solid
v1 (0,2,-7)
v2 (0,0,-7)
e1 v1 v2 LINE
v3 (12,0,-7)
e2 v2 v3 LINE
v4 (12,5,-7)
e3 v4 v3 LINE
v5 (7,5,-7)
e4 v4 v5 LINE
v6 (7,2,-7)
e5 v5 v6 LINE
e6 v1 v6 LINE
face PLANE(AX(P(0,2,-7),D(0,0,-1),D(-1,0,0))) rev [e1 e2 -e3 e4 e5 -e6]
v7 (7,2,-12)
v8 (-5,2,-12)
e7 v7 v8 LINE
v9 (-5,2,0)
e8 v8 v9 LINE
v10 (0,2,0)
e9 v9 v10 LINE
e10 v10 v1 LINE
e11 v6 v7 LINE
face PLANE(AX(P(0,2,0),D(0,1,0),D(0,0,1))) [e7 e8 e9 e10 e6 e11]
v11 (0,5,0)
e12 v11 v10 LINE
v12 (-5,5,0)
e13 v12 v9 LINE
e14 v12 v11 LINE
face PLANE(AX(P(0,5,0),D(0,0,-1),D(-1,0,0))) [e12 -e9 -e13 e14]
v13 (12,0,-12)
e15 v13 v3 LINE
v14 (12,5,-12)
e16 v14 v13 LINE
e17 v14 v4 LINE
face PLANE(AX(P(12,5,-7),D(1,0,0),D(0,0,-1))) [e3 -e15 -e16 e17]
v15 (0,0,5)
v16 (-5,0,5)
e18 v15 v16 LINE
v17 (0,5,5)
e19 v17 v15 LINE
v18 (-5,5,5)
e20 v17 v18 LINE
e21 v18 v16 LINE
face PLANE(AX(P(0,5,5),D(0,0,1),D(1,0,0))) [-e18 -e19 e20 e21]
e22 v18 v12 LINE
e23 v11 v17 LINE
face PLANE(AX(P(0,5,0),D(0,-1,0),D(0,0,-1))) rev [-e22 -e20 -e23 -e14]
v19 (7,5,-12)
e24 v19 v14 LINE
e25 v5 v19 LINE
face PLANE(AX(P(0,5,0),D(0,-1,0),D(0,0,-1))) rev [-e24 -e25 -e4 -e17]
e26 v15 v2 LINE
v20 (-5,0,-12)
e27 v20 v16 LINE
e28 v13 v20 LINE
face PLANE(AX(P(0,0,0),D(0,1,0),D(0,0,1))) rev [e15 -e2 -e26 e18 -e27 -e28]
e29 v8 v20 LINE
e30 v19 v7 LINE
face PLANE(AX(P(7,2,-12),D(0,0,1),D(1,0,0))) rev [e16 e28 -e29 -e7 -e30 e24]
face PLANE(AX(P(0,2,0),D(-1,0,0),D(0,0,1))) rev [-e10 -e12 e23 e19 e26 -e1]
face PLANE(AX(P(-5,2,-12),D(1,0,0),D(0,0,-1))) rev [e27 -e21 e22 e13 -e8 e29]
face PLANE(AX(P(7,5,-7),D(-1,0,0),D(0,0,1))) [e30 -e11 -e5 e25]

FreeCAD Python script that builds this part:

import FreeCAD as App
import Part
import Sketcher
from FreeCAD import Vector


def add_polygon(sketch, points):
    """Adds a closed chain of lines whose ends are joined by coincident constraints."""
    first, n = sketch.GeometryCount, len(points)
    for a, b in zip(points, points[1:] + points[:1]):
        sketch.addGeometry(Part.LineSegment(App.Vector(*a, 0), App.Vector(*b, 0)), False)
    for i in range(n):
        sketch.addConstraint(Sketcher.Constraint("Coincident", first + i, 2, first + (i + 1) % n, 1))

doc = App.newDocument("Part")
params = doc.addObject("Spreadsheet::Sheet", "Params")
for row, (alias, value) in enumerate([
    ("sketch1_width", "7 mm"),
    ("sketch1_width2", "12 mm"),
    ("pad1_length", "2 mm"),
    ("sketch2_width", "5 mm"),
    ("pad2_length", "5 mm"),
], start=1):
    params.set(f"A{row}", alias)
    params.set(f"B{row}", "=" + value)
    params.setAlias(f"B{row}", alias)

body = doc.addObject("PartDesign::Body", "Body")

# Sketch on XZ plane
sketch1 = body.newObject("Sketcher::SketchObject", "Sketch")
sketch1.AttachmentSupport = (doc.getObject("XZ_Plane"), [""])
sketch1.MapMode = "FlatFace"
add_polygon(sketch1, [(0, 0), (0, -7), (7, -7), (7, -12), (-5, -12), (-5, 0)])  # lines 0-5
sketch1.addConstraint(Sketcher.Constraint("Vertical", 0))
sketch1.addConstraint(Sketcher.Constraint("Horizontal", 1))
sketch1.addConstraint(Sketcher.Constraint("Vertical", 2))
sketch1.addConstraint(Sketcher.Constraint("Horizontal", 3))
sketch1.addConstraint(Sketcher.Constraint("Vertical", 4))
sketch1.addConstraint(Sketcher.Constraint("Horizontal", 5))
sketch1.addConstraint(Sketcher.Constraint("Coincident", 5, 2, -1, 1))
sketch1.addConstraint(Sketcher.Constraint("Equal", 1, 0))
sketch1.addConstraint(Sketcher.Constraint("Equal", 5, 2))
sketch1.addConstraint(Sketcher.Constraint("DistanceX", 1, 1, 1, 2, 7.0))
sketch1.addConstraint(Sketcher.Constraint("DistanceX", 3, 2, 3, 1, 12.0))
sketch1.setExpression("Constraints[15]", "Params.sketch1_width")
sketch1.setExpression("Constraints[16]", "Params.sketch1_width2")
pad1 = body.newObject("PartDesign::Pad", "Pad")
pad1.Profile = sketch1
pad1.setExpression("Length", "Params.pad1_length")
pad1.Reversed = True

# Sketch on XZ plane
sketch2 = body.newObject("Sketcher::SketchObject", "Sketch001")
sketch2.AttachmentSupport = (doc.getObject("XZ_Plane"), [""])
sketch2.MapMode = "FlatFace"
add_polygon(sketch2, [(-5, 5), (-5, 0), (0, 0), (0, 5)])  # lines 0-3
add_polygon(sketch2, [(7, -7), (7, -12), (12, -12), (12, -7)])  # lines 4-7
sketch2.addConstraint(Sketcher.Constraint("Vertical", 0))
sketch2.addConstraint(Sketcher.Constraint("Horizontal", 1))
sketch2.addConstraint(Sketcher.Constraint("Vertical", 2))
sketch2.addConstraint(Sketcher.Constraint("Horizontal", 3))
sketch2.addConstraint(Sketcher.Constraint("Vertical", 4))
sketch2.addConstraint(Sketcher.Constraint("Horizontal", 5))
sketch2.addConstraint(Sketcher.Constraint("Vertical", 6))
sketch2.addConstraint(Sketcher.Constraint("Horizontal", 7))
sketch2.addConstraint(Sketcher.Constraint("Coincident", 1, 2, -1, 1))
sketch2.addConstraint(Sketcher.Constraint("Equal", 3, 5))
sketch2.addConstraint(Sketcher.Constraint("Equal", 7, 0))
sketch2.addConstraint(Sketcher.Constraint("Equal", 2, 4))
sketch2.addConstraint(Sketcher.Constraint("DistanceX", 1, 1, 1, 2, 5.0))
sketch2.addConstraint(Sketcher.Constraint("DistanceX", -1, 1, 4, 2, 7.0))
sketch2.addConstraint(Sketcher.Constraint("DistanceY", 4, 2, -1, 1, 12.0))
sketch2.setExpression("Constraints[20]", "Params.sketch2_width")
pad2 = body.newObject("PartDesign::Pad", "Pad001")
pad2.Profile = sketch2
pad2.setExpression("Length", "Params.pad2_length")
pad2.Reversed = True

doc.recompute()
